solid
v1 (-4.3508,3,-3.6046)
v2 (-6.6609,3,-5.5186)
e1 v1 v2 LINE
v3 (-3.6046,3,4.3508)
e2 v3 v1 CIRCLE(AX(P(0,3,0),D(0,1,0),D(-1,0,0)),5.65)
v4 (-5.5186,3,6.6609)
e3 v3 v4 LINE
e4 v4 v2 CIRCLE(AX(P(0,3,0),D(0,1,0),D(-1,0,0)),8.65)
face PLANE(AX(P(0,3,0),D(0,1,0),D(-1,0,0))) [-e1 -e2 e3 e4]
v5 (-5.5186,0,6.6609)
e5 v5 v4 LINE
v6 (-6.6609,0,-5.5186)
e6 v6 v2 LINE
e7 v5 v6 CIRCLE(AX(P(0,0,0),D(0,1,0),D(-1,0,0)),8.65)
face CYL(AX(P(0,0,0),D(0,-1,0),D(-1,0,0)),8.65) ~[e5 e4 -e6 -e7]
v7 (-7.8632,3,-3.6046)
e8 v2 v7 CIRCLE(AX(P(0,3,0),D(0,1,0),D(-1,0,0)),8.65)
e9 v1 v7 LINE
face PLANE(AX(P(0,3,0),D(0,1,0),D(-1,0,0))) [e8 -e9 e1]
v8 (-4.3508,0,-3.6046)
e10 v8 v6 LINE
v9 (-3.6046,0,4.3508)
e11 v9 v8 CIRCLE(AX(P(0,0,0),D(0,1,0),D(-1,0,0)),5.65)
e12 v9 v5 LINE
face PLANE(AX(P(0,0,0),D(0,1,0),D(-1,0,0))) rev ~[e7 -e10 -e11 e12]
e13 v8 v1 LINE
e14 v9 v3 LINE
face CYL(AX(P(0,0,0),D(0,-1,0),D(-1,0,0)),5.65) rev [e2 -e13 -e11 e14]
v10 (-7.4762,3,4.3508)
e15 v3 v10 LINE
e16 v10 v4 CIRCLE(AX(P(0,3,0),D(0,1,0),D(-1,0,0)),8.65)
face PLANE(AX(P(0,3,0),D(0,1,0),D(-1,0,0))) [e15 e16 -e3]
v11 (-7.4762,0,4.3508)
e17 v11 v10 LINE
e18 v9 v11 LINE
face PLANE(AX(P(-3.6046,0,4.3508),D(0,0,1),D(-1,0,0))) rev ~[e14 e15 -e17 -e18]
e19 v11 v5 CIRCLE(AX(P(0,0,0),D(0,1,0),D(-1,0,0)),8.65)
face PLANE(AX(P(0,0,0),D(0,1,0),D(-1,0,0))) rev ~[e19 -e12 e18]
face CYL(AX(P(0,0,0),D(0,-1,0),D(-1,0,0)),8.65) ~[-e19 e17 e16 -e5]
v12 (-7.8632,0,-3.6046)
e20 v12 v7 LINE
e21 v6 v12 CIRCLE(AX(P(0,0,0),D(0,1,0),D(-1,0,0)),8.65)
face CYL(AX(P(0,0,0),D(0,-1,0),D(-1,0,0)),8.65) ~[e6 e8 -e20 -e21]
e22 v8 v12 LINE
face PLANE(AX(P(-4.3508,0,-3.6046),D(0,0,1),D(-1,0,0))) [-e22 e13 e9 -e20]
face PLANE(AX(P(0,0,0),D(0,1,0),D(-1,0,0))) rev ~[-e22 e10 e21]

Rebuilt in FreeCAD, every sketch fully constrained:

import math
import FreeCAD as App
import Part
import Sketcher
Q = App.Units.Quantity

doc = App.newDocument("Part")
body = doc.addObject("PartDesign::Body", "Body")

sketch1 = doc.addObject("Sketcher::SketchObject", "Sketch")
body.addObject(sketch1)
sketch1.AttachmentSupport = (doc.XZ_Plane, [""])
sketch1.MapMode = "FlatFace"
sketch1.addGeometry([
    Part.ArcOfCircle(Part.Circle(App.Vector(0, 0, 0), App.Vector(0, 0, 1), 5.7), math.radians(-140), math.radians(130)),
    Part.LineSegment(App.Vector(-3.6, 4.4, 0), App.Vector(-7.5, 4.4, 0)),
    Part.ArcOfCircle(Part.Circle(App.Vector(0, 0, 0), App.Vector(0, 0, 1), 8.7), math.radians(-155), math.radians(150)),
    Part.LineSegment(App.Vector(-7.9, -3.6, 0), App.Vector(-4.4, -3.6, 0)),
], False)
sketch1.addConstraint([
    Sketcher.Constraint("Coincident", 0, 2, 1, 1),
    Sketcher.Constraint("Coincident", 1, 2, 2, 2),
    Sketcher.Constraint("Coincident", 2, 1, 3, 1),
    Sketcher.Constraint("Coincident", 3, 2, 0, 1),
    Sketcher.Constraint("Horizontal", 1),
    Sketcher.Constraint("Horizontal", 3),
    Sketcher.Constraint("Coincident", 0, 3, -1, 1),
    Sketcher.Constraint("Coincident", 2, 3, -1, 1),
    Sketcher.Constraint("Radius", 0, Q("5.65 mm")),
    Sketcher.Constraint("Radius", 2, Q("8.65 mm")),
    Sketcher.Constraint("DistanceX", 1, 2, 1, 1, Q("3.8716 mm")),
    Sketcher.Constraint("DistanceX", 3, 1, 3, 2, Q("3.5124 mm")),
])
pad1 = doc.addObject("PartDesign::Pad", "Pad")
body.addObject(pad1)
pad1.Profile = sketch1
pad1.Length = 3
pad1.Reversed = True

doc.recompute()
